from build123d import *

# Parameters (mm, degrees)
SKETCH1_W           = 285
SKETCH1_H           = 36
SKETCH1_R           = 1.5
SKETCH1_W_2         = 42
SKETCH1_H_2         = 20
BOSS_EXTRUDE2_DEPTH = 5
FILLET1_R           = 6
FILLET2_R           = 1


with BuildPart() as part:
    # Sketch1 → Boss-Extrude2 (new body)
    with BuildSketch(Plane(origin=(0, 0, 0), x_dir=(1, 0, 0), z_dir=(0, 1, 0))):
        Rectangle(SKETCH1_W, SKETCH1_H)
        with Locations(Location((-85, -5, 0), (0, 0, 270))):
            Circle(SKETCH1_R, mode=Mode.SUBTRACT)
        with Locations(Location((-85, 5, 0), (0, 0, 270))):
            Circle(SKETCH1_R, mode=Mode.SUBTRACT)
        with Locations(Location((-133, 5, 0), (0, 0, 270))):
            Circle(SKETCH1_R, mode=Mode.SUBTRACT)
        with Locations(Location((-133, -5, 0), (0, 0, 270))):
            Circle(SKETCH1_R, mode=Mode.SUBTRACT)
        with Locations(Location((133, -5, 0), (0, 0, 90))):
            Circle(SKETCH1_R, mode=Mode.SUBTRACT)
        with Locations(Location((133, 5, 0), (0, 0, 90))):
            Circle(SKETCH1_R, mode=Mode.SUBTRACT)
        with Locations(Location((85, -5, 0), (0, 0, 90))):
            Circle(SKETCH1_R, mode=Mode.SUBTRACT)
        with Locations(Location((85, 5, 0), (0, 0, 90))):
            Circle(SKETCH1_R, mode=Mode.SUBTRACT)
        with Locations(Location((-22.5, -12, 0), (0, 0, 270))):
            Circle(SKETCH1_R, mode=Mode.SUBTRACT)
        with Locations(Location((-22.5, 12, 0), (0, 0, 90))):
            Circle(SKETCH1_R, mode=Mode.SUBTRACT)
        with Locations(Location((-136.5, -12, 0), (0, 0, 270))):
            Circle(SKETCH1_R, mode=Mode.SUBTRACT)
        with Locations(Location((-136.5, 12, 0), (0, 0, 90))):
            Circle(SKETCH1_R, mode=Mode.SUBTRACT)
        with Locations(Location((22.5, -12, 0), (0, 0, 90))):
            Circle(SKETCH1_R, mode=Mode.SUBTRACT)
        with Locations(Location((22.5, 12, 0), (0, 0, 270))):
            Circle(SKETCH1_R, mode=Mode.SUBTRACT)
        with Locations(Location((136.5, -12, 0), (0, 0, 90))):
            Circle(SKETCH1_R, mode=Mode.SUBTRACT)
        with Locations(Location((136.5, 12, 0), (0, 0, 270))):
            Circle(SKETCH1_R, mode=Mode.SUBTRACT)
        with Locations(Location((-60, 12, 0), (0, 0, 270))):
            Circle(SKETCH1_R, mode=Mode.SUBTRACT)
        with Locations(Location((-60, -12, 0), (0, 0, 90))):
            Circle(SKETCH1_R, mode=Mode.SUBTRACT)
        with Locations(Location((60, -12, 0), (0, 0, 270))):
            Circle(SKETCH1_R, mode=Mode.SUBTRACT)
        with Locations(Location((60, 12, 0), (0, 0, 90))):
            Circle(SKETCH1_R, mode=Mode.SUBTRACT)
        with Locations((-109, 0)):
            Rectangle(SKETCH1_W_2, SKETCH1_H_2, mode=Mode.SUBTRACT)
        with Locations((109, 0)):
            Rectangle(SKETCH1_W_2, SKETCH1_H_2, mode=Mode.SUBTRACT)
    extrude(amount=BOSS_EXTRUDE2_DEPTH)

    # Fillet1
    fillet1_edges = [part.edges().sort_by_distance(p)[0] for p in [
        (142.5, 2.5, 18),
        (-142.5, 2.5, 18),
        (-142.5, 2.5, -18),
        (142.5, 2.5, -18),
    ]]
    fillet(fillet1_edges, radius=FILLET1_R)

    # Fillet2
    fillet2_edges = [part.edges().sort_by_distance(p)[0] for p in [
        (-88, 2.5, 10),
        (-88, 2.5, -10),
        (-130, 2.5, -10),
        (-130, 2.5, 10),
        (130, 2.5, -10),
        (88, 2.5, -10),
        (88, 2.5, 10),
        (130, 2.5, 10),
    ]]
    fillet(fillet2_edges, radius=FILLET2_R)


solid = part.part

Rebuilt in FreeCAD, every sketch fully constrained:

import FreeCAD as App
import Part
import Sketcher

V = App.Vector


def edges_at(feature, points):
    """Names of the edges that pass closest to the given points."""
    edges = feature.Shape.Edges
    near = lambda p: min(range(len(edges)), key=lambda i: edges[i].distToShape(Part.Vertex(*p))[0])
    return sorted({f"Edge{near(p) + 1}" for p in points})

doc = App.newDocument("Part")
params = doc.addObject("Spreadsheet::Sheet", "Params")
for row, (alias, value) in enumerate([
    ("sketch1_diameter", "3 mm"),
    ("sketch1_width", "285 mm"),
    ("sketch1_width2", "42 mm"),
    ("sketch1_height", "36 mm"),
    ("sketch1_height2", "20 mm"),
    ("pad1_length", "5 mm"),
    ("fillet_radius", "6 mm"),
    ("fillet2_radius", "1 mm"),
], start=1):
    params.set(f"A{row}", alias)
    params.set(f"B{row}", "=" + value)
    params.setAlias(f"B{row}", alias)

body = doc.addObject("PartDesign::Body", "Body")

# Sketch on XZ plane
sketch1 = body.newObject("Sketcher::SketchObject", "Sketch")
sketch1.AttachmentSupport = (doc.getObject("XZ_Plane"), [""])
sketch1.MapMode = "FlatFace"
sketch1.addGeometry([
    Part.LineSegment(V(-142.5, -18, 0), V(-142.5, 18, 0)),  # 0
    Part.LineSegment(V(-142.5, 18, 0), V(142.5, 18, 0)),  # 1
    Part.LineSegment(V(142.5, 18, 0), V(142.5, -18, 0)),  # 2
    Part.LineSegment(V(142.5, -18, 0), V(-142.5, -18, 0)),  # 3
    Part.Circle(V(-136.5, 12, 0), V(0, 0, 1), 1.5),  # 4
    Part.Circle(V(-60, 12, 0), V(0, 0, 1), 1.5),  # 5
    Part.Circle(V(-22.5, 12, 0), V(0, 0, 1), 1.5),  # 6
    Part.Circle(V(-133, 5, 0), V(0, 0, 1), 1.5),  # 7
    Part.Circle(V(-85, 5, 0), V(0, 0, 1), 1.5),  # 8
    Part.Circle(V(22.5, 12, 0), V(0, 0, 1), 1.5),  # 9
    Part.Circle(V(60, 12, 0), V(0, 0, 1), 1.5),  # 10
    Part.Circle(V(136.5, 12, 0), V(0, 0, 1), 1.5),  # 11
    Part.Circle(V(85, 5, 0), V(0, 0, 1), 1.5),  # 12
    Part.Circle(V(133, 5, 0), V(0, 0, 1), 1.5),  # 13
    Part.LineSegment(V(-88, 10, 0), V(-130, 10, 0)),  # 14
    Part.LineSegment(V(-130, 10, 0), V(-130, -10, 0)),  # 15
    Part.LineSegment(V(-130, -10, 0), V(-88, -10, 0)),  # 16
    Part.LineSegment(V(-88, -10, 0), V(-88, 10, 0)),  # 17
    Part.Circle(V(-133, -5, 0), V(0, 0, 1), 1.5),  # 18
    Part.Circle(V(-85, -5, 0), V(0, 0, 1), 1.5),  # 19
    Part.Circle(V(-136.5, -12, 0), V(0, 0, 1), 1.5),  # 20
    Part.Circle(V(-60, -12, 0), V(0, 0, 1), 1.5),  # 21
    Part.Circle(V(-22.5, -12, 0), V(0, 0, 1), 1.5),  # 22
    Part.LineSegment(V(130, 10, 0), V(88, 10, 0)),  # 23
    Part.LineSegment(V(88, 10, 0), V(88, -10, 0)),  # 24
    Part.LineSegment(V(88, -10, 0), V(130, -10, 0)),  # 25
    Part.LineSegment(V(130, -10, 0), V(130, 10, 0)),  # 26
    Part.Circle(V(85, -5, 0), V(0, 0, 1), 1.5),  # 27
    Part.Circle(V(133, -5, 0), V(0, 0, 1), 1.5),  # 28
    Part.Circle(V(22.5, -12, 0), V(0, 0, 1), 1.5),  # 29
    Part.Circle(V(60, -12, 0), V(0, 0, 1), 1.5),  # 30
    Part.Circle(V(136.5, -12, 0), V(0, 0, 1), 1.5),  # 31
], False)
sketch1.addConstraint([
    Sketcher.Constraint("Coincident", 0, 2, 1, 1),
    Sketcher.Constraint("Coincident", 1, 2, 2, 1),
    Sketcher.Constraint("Coincident", 2, 2, 3, 1),
    Sketcher.Constraint("Coincident", 3, 2, 0, 1),
    Sketcher.Constraint("Coincident", 14, 2, 15, 1),
    Sketcher.Constraint("Coincident", 15, 2, 16, 1),
    Sketcher.Constraint("Coincident", 16, 2, 17, 1),
    Sketcher.Constraint("Coincident", 17, 2, 14, 1),
    Sketcher.Constraint("Coincident", 23, 2, 24, 1),
    Sketcher.Constraint("Coincident", 24, 2, 25, 1),
    Sketcher.Constraint("Coincident", 25, 2, 26, 1),
    Sketcher.Constraint("Coincident", 26, 2, 23, 1),
    Sketcher.Constraint("Vertical", 0),
    Sketcher.Constraint("Horizontal", 1),
    Sketcher.Constraint("Vertical", 2),
    Sketcher.Constraint("Horizontal", 3),
    Sketcher.Constraint("Horizontal", 14),
    Sketcher.Constraint("Vertical", 15),
    Sketcher.Constraint("Horizontal", 16),
    Sketcher.Constraint("Vertical", 17),
    Sketcher.Constraint("Horizontal", 23),
    Sketcher.Constraint("Vertical", 24),
    Sketcher.Constraint("Horizontal", 25),
    Sketcher.Constraint("Vertical", 26),
    Sketcher.Constraint("Equal", 4, 5),
    Sketcher.Constraint("Equal", 5, 6),
    Sketcher.Constraint("Equal", 6, 7),
    Sketcher.Constraint("Equal", 7, 8),
    Sketcher.Constraint("Equal", 8, 9),
    Sketcher.Constraint("Equal", 9, 10),
    Sketcher.Constraint("Equal", 10, 11),
    Sketcher.Constraint("Equal", 11, 12),
    Sketcher.Constraint("Equal", 12, 13),
    Sketcher.Constraint("Equal", 13, 18),
    Sketcher.Constraint("Equal", 18, 19),
    Sketcher.Constraint("Equal", 19, 20),
    Sketcher.Constraint("Equal", 20, 21),
    Sketcher.Constraint("Equal", 21, 22),
    Sketcher.Constraint("Equal", 22, 27),
    Sketcher.Constraint("Equal", 27, 28),
    Sketcher.Constraint("Equal", 28, 29),
    Sketcher.Constraint("Equal", 29, 30),
    Sketcher.Constraint("Equal", 30, 31),
    Sketcher.Constraint("Symmetric", 13, 3, 18, 3, -1, 1),
    Sketcher.Constraint("Symmetric", 12, 3, 19, 3, -1, 1),
    Sketcher.Constraint("Symmetric", 11, 3, 20, 3, -1, 1),
    Sketcher.Constraint("Symmetric", 10, 3, 21, 3, -1, 1),
    Sketcher.Constraint("Symmetric", 9, 3, 22, 3, -1, 1),
    Sketcher.Constraint("Symmetric", 8, 3, 27, 3, -1, 1),
    Sketcher.Constraint("Symmetric", 7, 3, 28, 3, -1, 1),
    Sketcher.Constraint("Symmetric", 6, 3, 29, 3, -1, 1),
    Sketcher.Constraint("Symmetric", 5, 3, 30, 3, -1, 1),
    Sketcher.Constraint("Symmetric", 4, 3, 31, 3, -1, 1),
    Sketcher.Constraint("Symmetric", 0, 2, 2, 2, -1, 1),
    Sketcher.Constraint("Symmetric", 16, 2, 23, 2, -1, 1),
    Sketcher.Constraint("Symmetric", 14, 2, 25, 2, -1, 1),
    Sketcher.Constraint("Symmetric", 6, 3, 9, 3, -2),
    Sketcher.Constraint("Symmetric", 5, 3, 10, 3, -2),
    Sketcher.Constraint("Symmetric", 4, 3, 11, 3, -2),
    Sketcher.Constraint("Symmetric", 8, 3, 12, 3, -2),
    Sketcher.Constraint("Symmetric", 7, 3, 13, 3, -2),
    Sketcher.Constraint("Horizontal", 4, 3, 5, 3),
    Sketcher.Constraint("Horizontal", 5, 3, 6, 3),
    Sketcher.Constraint("Horizontal", 7, 3, 8, 3),
    Sketcher.Constraint("Horizontal", 17, 2, 23, 2),
    Sketcher.Constraint("Diameter", 4, 3.0),
    Sketcher.Constraint("DistanceX", 1, 1, 1, 2, 285.0),
    Sketcher.Constraint("DistanceX", 14, 2, 14, 1, 42.0),
    Sketcher.Constraint("DistanceY", 0, 1, 0, 2, 36.0),
    Sketcher.Constraint("DistanceY", 15, 2, 15, 1, 20.0),
    Sketcher.Constraint("DistanceY", -1, 1, 4, 3, 12.0),
    Sketcher.Constraint("DistanceX", 5, 3, -1, 1, 60.0),
    Sketcher.Constraint("DistanceX", 7, 3, -1, 1, 133.0),
    Sketcher.Constraint("DistanceY", -1, 1, 7, 3, 5.0),
    Sketcher.Constraint("DistanceX", 8, 3, -1, 1, 85.0),
    Sketcher.Constraint("DistanceX", 14, 2, -1, 1, 130.0),
    Sketcher.Constraint("DistanceX", 4, 3, 6, 3, 114.0),
    Sketcher.Constraint("DistanceX", 6, 3, 9, 3, 45.0),
])
sketch1.setExpression("Constraints[65]", "Params.sketch1_diameter")
sketch1.setExpression("Constraints[66]", "Params.sketch1_width")
sketch1.setExpression("Constraints[67]", "Params.sketch1_width2")
sketch1.setExpression("Constraints[68]", "Params.sketch1_height")
sketch1.setExpression("Constraints[69]", "Params.sketch1_height2")
pad1 = body.newObject("PartDesign::Pad", "Pad")
pad1.Profile = sketch1
pad1.setExpression("Length", "Params.pad1_length")
pad1.Reversed = True
doc.recompute()

fillet = body.newObject("PartDesign::Fillet", "Fillet")
fillet.Base = (pad1, edges_at(pad1, [
    (142.5, 2.5, 18),
    (-142.5, 2.5, 18),
    (-142.5, 2.5, -18),
    (142.5, 2.5, -18),
]))
fillet.setExpression("Radius", "Params.fillet_radius")
doc.recompute()

fillet2 = body.newObject("PartDesign::Fillet", "Fillet001")
fillet2.Base = (fillet, edges_at(fillet, [
    (-88, 2.5, 10),
    (-88, 2.5, -10),
    (-130, 2.5, -10),
    (-130, 2.5, 10),
    (130, 2.5, -10),
    (88, 2.5, -10),
    (88, 2.5, 10),
    (130, 2.5, 10),
]))
fillet2.setExpression("Radius", "Params.fillet2_radius")

doc.recompute()
